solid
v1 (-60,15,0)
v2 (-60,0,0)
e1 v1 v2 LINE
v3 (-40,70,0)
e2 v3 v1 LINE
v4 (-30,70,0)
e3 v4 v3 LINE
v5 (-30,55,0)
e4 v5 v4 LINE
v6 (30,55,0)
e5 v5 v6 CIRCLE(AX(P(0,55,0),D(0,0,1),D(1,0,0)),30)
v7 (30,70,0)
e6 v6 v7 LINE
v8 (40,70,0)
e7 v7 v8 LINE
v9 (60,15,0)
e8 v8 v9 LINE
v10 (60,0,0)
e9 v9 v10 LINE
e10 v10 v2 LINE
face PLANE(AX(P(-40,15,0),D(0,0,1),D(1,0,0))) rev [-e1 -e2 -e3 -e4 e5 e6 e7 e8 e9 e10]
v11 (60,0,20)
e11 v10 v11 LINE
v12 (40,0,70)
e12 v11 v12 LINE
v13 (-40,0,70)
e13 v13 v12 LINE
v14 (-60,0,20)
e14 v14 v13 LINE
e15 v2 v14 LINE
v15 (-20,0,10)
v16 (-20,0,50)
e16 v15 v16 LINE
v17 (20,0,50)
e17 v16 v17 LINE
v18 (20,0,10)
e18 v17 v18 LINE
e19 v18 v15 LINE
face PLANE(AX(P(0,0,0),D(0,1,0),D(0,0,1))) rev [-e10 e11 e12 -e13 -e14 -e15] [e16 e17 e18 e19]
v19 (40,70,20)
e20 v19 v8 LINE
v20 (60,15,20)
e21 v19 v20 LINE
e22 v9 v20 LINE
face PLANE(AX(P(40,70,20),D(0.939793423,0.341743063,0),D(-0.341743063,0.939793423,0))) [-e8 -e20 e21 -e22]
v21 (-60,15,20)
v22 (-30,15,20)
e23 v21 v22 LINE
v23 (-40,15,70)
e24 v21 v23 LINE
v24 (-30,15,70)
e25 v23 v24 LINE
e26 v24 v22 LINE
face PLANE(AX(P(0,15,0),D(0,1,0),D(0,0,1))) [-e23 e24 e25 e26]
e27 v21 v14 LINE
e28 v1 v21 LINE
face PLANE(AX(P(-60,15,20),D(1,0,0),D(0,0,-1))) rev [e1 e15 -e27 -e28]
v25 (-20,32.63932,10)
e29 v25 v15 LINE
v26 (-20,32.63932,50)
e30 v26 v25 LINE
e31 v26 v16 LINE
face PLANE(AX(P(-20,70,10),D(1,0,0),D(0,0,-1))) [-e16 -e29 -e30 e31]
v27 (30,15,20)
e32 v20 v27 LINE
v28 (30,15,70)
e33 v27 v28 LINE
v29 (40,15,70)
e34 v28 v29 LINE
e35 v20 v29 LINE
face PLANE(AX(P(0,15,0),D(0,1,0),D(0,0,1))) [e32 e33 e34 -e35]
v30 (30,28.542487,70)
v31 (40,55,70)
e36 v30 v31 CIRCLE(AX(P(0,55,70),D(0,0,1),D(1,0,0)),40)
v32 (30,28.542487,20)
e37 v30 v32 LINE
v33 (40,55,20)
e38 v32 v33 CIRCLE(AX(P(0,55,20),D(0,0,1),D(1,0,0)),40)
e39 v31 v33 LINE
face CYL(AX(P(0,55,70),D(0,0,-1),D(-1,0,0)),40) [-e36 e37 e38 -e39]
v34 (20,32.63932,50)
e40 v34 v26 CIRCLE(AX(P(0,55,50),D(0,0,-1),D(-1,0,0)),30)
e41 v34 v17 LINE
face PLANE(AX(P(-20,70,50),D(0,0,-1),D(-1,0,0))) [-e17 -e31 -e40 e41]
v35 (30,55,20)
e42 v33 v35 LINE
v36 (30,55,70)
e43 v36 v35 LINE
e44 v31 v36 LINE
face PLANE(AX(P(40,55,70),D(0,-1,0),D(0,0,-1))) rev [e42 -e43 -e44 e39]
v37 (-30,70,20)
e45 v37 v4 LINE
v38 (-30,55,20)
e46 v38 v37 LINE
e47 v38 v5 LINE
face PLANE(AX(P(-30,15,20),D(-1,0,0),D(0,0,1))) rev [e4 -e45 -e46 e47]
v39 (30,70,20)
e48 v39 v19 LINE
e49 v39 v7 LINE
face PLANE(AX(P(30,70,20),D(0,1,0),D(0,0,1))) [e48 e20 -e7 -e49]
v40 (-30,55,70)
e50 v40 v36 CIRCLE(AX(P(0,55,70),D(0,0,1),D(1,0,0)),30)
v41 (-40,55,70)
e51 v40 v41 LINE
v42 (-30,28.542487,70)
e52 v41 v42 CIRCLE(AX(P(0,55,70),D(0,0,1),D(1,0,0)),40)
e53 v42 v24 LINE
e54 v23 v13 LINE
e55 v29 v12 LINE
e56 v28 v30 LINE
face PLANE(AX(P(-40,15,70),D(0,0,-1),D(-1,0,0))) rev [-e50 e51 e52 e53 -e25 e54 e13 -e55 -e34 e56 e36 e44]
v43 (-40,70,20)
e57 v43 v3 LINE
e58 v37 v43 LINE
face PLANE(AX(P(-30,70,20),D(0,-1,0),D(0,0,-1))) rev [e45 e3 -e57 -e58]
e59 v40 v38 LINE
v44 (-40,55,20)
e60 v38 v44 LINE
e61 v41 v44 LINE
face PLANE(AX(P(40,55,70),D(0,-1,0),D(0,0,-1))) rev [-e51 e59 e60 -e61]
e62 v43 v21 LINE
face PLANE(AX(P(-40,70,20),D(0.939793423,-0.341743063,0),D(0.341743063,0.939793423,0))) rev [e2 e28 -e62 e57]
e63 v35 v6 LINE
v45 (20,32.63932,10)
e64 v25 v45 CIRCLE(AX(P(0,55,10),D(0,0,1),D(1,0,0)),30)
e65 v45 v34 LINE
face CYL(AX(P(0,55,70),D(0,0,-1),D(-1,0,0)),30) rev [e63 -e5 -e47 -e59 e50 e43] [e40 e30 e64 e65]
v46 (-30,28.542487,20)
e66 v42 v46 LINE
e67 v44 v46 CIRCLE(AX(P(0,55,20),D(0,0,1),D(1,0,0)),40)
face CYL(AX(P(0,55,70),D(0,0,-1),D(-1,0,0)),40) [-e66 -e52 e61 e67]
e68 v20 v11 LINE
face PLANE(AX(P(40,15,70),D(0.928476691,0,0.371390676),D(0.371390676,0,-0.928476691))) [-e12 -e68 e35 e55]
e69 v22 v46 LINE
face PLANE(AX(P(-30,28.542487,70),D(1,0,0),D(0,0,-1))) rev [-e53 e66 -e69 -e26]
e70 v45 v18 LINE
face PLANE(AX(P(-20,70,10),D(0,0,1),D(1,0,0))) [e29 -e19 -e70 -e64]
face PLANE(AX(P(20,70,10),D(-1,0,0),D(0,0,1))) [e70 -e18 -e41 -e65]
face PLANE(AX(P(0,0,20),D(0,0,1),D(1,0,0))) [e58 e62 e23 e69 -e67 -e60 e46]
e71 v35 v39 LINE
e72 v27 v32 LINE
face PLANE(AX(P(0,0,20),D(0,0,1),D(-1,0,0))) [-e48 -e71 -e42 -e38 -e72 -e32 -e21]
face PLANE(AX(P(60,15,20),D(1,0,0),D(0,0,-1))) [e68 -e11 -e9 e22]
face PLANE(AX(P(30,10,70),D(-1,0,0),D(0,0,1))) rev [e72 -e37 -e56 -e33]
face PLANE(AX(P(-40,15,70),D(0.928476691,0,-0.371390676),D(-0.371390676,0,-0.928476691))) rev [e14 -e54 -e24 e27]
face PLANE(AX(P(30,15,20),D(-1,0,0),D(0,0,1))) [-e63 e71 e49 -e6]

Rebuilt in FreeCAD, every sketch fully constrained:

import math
import FreeCAD as App
import Part
import Sketcher

V = App.Vector


def add_polygon(sketch, points):
    """Adds a closed chain of lines whose ends are joined by coincident constraints."""
    first, n = sketch.GeometryCount, len(points)
    for a, b in zip(points, points[1:] + points[:1]):
        sketch.addGeometry(Part.LineSegment(App.Vector(*a, 0), App.Vector(*b, 0)), False)
    for i in range(n):
        sketch.addConstraint(Sketcher.Constraint("Coincident", first + i, 2, first + (i + 1) % n, 1))

doc = App.newDocument("Part")
params = doc.addObject("Spreadsheet::Sheet", "Params")
for row, (alias, value) in enumerate([
    ("sketch1_width", "80 mm"),
    ("sketch1_height", "70 mm"),
    ("pad1_length", "15 mm"),
    ("sketch2_radius", "40 mm"),
    ("sketch2_width", "60 mm"),
    ("pad2_length", "70 mm"),
    ("sketch3_width", "22 mm"),
    ("sketch3_width2", "2 mm"),
    ("sketch3_height", "20 mm"),
    ("sketch3_height2", "70 mm"),
    ("pad3_length", "15 mm"),
    ("sketch4_width", "30 mm"),
    ("sketch4_width2", "10 mm"),
    ("sketch4_height", "55 mm"),
    ("pad4_length", "20 mm"),
    ("sketch5_radius", "30 mm"),
    ("sketch6_width", "40 mm"),
], start=1):
    params.set(f"A{row}", alias)
    params.set(f"B{row}", "=" + value)
    params.setAlias(f"B{row}", alias)

body = doc.addObject("PartDesign::Body", "Body")

sketch1 = body.newObject("Sketcher::SketchObject", "Sketch")
sketch1.AttachmentSupport = (doc.getObject("XZ_Plane"), [""])
sketch1.MapMode = "FlatFace"
add_polygon(sketch1, [(-40, 0), (-40, 70), (40, 70), (40, 0)])
sketch1.addConstraint([
    Sketcher.Constraint("Vertical", 0),
    Sketcher.Constraint("Horizontal", 1),
    Sketcher.Constraint("Vertical", 2),
    Sketcher.Constraint("Horizontal", 3),
    Sketcher.Constraint("Symmetric", 2, 2, 3, 2, -1, 1),
    Sketcher.Constraint("DistanceX", 1, 1, 1, 2, 80.0),
    Sketcher.Constraint("DistanceY", 0, 1, 0, 2, 70.0),
])
sketch1.setExpression("Constraints[9]", "Params.sketch1_width")
sketch1.setExpression("Constraints[10]", "Params.sketch1_height")
pad1 = body.newObject("PartDesign::Pad", "Pad")
pad1.Profile = sketch1
pad1.setExpression("Length", "Params.pad1_length")
pad1.Reversed = True

sketch2 = body.newObject("Sketcher::SketchObject", "Sketch001")
sketch2.AttachmentSupport = (doc.getObject("XY_Plane"), [""])
sketch2.MapMode = "FlatFace"
sketch2.addGeometry([
    Part.LineSegment(V(-30, 10, 0), V(30, 10, 0)),
    Part.LineSegment(V(30, 10, 0), V(30, 29, 0)),
    Part.ArcOfCircle(Part.Circle(V(0, 55, 0), V(0, 0, 1), 40), math.radians(-41), math.radians(0)),
    Part.LineSegment(V(40, 55, 0), V(-40, 55, 0)),
    Part.ArcOfCircle(Part.Circle(V(0, 55, 0), V(0, 0, 1), 40), math.radians(180), math.radians(221)),
    Part.LineSegment(V(-30, 29, 0), V(-30, 10, 0)),
], False)
sketch2.addConstraint([
    Sketcher.Constraint("Coincident", 0, 2, 1, 1),
    Sketcher.Constraint("Coincident", 1, 2, 2, 1),
    Sketcher.Constraint("Coincident", 2, 2, 3, 1),
    Sketcher.Constraint("Coincident", 3, 2, 4, 1),
    Sketcher.Constraint("Coincident", 4, 2, 5, 1),
    Sketcher.Constraint("Coincident", 5, 2, 0, 1),
    Sketcher.Constraint("Horizontal", 0),
    Sketcher.Constraint("Vertical", 1),
    Sketcher.Constraint("Horizontal", 3),
    Sketcher.Constraint("Vertical", 5),
    Sketcher.Constraint("Coincident", 4, 3, 2, 3),
    Sketcher.Constraint("Equal", 2, 4),
    Sketcher.Constraint("Symmetric", 1, 2, 4, 2, -2),
    Sketcher.Constraint("Horizontal", 4, 3, 2, 2),
    Sketcher.Constraint("Radius", 2, 40.0),
    Sketcher.Constraint("DistanceX", 0, 1, 0, 2, 60.0),
    Sketcher.Constraint("DistanceY", -1, 1, 2, 3, 55.0),
    Sketcher.Constraint("DistanceY", -1, 1, 0, 2, 10.0),
])
sketch2.setExpression("Constraints[14]", "Params.sketch2_radius")
sketch2.setExpression("Constraints[15]", "Params.sketch2_width")
pad2 = body.newObject("PartDesign::Pad", "Pad001")
pad2.Profile = sketch2
pad2.setExpression("Length", "Params.pad2_length")

sketch3 = body.newObject("Sketcher::SketchObject", "Sketch002")
sketch3.AttachmentSupport = (doc.getObject("XZ_Plane"), [""])
sketch3.MapMode = "FlatFace"
add_polygon(sketch3, [(-38, 0), (-60, 0), (-60, 20), (-40, 70), (-38, 70)])
sketch3.addConstraint([
    Sketcher.Constraint("Horizontal", 0),
    Sketcher.Constraint("Vertical", 1),
    Sketcher.Constraint("Horizontal", 3),
    Sketcher.Constraint("Vertical", 4),
    Sketcher.Constraint("PointOnObject", 0, 2, -1),
    Sketcher.Constraint("DistanceX", 0, 2, 0, 1, 22.0),
    Sketcher.Constraint("DistanceX", 3, 1, 3, 2, 2.0),
    Sketcher.Constraint("DistanceY", 1, 1, 1, 2, 20.0),
    Sketcher.Constraint("DistanceY", 4, 2, 4, 1, 70.0),
    Sketcher.Constraint("DistanceX", 0, 2, -1, 1, 60.0),
])
sketch3.setExpression("Constraints[10]", "Params.sketch3_width")
sketch3.setExpression("Constraints[11]", "Params.sketch3_width2")
sketch3.setExpression("Constraints[12]", "Params.sketch3_height")
sketch3.setExpression("Constraints[13]", "Params.sketch3_height2")
pad3 = body.newObject("PartDesign::Pad", "Pad002")
pad3.Profile = sketch3
pad3.setExpression("Length", "Params.pad3_length")
pad3.Reversed = True

sketch4 = body.newObject("Sketcher::SketchObject", "Sketch003")
sketch4.AttachmentSupport = (doc.getObject("XY_Plane"), [""])
sketch4.MapMode = "FlatFace"
add_polygon(sketch4, [(-60, 15), (-30, 15), (-30, 70), (-40, 70)])
sketch4.addConstraint([
    Sketcher.Constraint("Horizontal", 0),
    Sketcher.Constraint("Vertical", 1),
    Sketcher.Constraint("Horizontal", 2),
    Sketcher.Constraint("DistanceX", 0, 1, 0, 2, 30.0),
    Sketcher.Constraint("DistanceX", 2, 2, 2, 1, 10.0),
    Sketcher.Constraint("DistanceY", 1, 1, 1, 2, 55.0),
    Sketcher.Constraint("DistanceX", 0, 2, -1, 1, 30.0),
    Sketcher.Constraint("DistanceY", -1, 1, 0, 2, 15.0),
])
sketch4.setExpression("Constraints[7]", "Params.sketch4_width")
sketch4.setExpression("Constraints[8]", "Params.sketch4_width2")
sketch4.setExpression("Constraints[9]", "Params.sketch4_height")
pad4 = body.newObject("PartDesign::Pad", "Pad003")
pad4.Profile = sketch4
pad4.setExpression("Length", "Params.pad4_length")
doc.recompute()

mirrored = body.newObject("PartDesign::Mirrored", "Mirrored")
mirrored.Originals = [pad3, pad4]
mirrored.MirrorPlane = (doc.getObject("YZ_Plane"), [""])
body.Tip = mirrored

sketch5 = body.newObject("Sketcher::SketchObject", "Sketch004")
sketch5.AttachmentSupport = (doc.getObject("XY_Plane"), [""])
sketch5.MapMode = "FlatFace"
sketch5.addGeometry([
    Part.LineSegment(V(30, 55, 0), V(-30, 55, 0)),
    Part.ArcOfCircle(Part.Circle(V(0, 55, 0), V(0, 0, 1), 30), math.radians(180), math.radians(360)),
], False)
sketch5.addConstraint([
    Sketcher.Constraint("Coincident", 0, 1, 1, 2),
    Sketcher.Constraint("Coincident", 1, 1, 0, 2),
    Sketcher.Constraint("Horizontal", 0),
    Sketcher.Constraint("PointOnObject", 1, 3, -2),
    Sketcher.Constraint("Horizontal", 1, 3, 0, 1),
    Sketcher.Constraint("Radius", 1, 30.0),
    Sketcher.Constraint("DistanceY", -1, 1, 1, 3, 55.0),
])
sketch5.setExpression("Constraints[5]", "Params.sketch5_radius")
pocket1 = body.newObject("PartDesign::Pocket", "Pocket")
pocket1.Profile = sketch5
pocket1.Type = "ThroughAll"
pocket1.Reversed = True

sketch6 = body.newObject("Sketcher::SketchObject", "Sketch005")
sketch6.AttachmentSupport = (doc.getObject("XZ_Plane"), [""])
sketch6.MapMode = "FlatFace"
add_polygon(sketch6, [(-20, 10), (-20, 50), (20, 50), (20, 10)])
sketch6.addConstraint([
    Sketcher.Constraint("Vertical", 0),
    Sketcher.Constraint("Horizontal", 1),
    Sketcher.Constraint("Vertical", 2),
    Sketcher.Constraint("Horizontal", 3),
    Sketcher.Constraint("Equal", 3, 0),
    Sketcher.Constraint("DistanceX", 1, 1, 1, 2, 40.0),
    Sketcher.Constraint("DistanceX", 0, 2, -1, 1, 20.0),
    Sketcher.Constraint("DistanceY", -1, 1, 0, 2, 50.0),
])
sketch6.setExpression("Constraints[9]", "Params.sketch6_width")
pocket2 = body.newObject("PartDesign::Pocket", "Pocket001")
pocket2.Profile = sketch6
pocket2.Type = "ThroughAll"

doc.recompute()
